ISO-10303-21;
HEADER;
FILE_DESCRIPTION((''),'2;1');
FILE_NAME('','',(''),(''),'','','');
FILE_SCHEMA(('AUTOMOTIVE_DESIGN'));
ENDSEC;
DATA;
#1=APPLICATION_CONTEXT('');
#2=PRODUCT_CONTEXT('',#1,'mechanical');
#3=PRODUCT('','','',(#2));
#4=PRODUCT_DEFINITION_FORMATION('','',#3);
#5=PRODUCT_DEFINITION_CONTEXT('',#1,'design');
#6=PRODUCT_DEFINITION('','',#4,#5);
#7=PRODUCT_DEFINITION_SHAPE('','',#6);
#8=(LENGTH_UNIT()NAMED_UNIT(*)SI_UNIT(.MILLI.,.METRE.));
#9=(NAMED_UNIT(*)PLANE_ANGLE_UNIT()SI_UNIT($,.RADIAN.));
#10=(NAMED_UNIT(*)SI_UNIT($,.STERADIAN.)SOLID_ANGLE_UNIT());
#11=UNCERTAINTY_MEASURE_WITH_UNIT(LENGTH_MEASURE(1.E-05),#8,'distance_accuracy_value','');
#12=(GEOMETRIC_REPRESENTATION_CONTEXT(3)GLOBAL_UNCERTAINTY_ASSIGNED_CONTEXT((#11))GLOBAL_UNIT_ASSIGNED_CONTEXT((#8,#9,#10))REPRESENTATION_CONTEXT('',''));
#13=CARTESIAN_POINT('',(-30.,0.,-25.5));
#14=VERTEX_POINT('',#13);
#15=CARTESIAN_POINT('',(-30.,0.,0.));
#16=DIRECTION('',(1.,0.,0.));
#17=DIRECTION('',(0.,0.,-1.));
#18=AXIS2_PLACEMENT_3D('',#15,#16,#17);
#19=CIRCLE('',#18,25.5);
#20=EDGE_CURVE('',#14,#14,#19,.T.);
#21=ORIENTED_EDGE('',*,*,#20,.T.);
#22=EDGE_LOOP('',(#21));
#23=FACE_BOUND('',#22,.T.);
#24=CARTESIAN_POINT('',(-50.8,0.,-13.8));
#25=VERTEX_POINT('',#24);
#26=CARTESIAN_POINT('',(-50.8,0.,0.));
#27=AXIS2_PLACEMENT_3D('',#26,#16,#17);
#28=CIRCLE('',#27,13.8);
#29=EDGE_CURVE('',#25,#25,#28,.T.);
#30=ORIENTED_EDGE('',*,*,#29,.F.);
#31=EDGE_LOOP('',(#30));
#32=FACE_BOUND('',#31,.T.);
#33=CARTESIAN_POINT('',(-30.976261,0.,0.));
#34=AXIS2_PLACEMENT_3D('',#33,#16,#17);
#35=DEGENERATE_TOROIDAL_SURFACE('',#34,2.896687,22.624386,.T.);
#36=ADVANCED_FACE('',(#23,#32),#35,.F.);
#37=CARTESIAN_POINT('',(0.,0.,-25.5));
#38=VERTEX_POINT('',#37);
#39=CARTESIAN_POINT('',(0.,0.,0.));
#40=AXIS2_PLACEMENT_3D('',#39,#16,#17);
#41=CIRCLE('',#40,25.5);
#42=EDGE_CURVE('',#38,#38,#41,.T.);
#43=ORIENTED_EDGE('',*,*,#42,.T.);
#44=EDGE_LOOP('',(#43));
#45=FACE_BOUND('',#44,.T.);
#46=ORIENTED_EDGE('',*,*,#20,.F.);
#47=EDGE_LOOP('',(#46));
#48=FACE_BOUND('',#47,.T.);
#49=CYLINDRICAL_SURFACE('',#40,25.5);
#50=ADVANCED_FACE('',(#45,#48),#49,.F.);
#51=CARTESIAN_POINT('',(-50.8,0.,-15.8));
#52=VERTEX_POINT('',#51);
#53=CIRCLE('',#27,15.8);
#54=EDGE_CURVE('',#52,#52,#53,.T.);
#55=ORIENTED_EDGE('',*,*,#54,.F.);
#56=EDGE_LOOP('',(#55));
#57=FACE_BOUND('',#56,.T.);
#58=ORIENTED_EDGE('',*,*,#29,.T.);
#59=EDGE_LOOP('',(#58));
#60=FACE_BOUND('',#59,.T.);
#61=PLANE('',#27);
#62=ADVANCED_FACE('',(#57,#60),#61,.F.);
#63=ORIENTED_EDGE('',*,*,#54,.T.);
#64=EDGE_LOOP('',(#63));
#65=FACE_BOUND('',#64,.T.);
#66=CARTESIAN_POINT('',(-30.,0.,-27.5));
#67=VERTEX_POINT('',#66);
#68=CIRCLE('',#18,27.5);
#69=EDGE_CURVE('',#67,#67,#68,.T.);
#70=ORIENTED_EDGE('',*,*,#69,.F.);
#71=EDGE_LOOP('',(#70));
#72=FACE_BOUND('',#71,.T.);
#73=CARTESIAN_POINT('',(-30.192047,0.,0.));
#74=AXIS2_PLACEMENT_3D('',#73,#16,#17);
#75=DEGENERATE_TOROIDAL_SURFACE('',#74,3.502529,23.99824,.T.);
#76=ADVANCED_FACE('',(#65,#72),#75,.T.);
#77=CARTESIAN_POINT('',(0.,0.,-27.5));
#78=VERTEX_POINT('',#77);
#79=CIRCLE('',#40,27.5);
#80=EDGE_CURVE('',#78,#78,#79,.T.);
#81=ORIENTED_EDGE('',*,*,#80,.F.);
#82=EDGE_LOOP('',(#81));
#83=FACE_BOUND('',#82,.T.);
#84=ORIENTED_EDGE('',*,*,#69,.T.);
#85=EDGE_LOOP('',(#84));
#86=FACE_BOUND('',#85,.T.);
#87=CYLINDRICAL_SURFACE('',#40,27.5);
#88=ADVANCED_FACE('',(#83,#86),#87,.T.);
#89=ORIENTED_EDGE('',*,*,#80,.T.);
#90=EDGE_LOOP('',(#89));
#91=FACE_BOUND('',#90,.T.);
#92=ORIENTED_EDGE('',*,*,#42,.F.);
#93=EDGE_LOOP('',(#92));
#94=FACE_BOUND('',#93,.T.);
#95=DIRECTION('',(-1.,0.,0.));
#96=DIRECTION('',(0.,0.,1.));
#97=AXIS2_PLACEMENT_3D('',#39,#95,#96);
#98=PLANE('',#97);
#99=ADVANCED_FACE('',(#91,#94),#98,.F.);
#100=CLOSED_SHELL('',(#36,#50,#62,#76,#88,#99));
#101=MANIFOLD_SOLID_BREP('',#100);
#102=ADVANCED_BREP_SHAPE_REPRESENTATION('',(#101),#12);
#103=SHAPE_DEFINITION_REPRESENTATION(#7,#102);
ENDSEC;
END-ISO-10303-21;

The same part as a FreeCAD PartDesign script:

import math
import FreeCAD as App
import Part
import Sketcher
from FreeCAD import Vector

doc = App.newDocument("Part")
body = doc.addObject("PartDesign::Body", "Body")

# Sketch on XY plane
sketch1 = body.newObject("Sketcher::SketchObject", "Sketch")
sketch1.AttachmentSupport = (doc.getObject("XY_Plane"), [""])
sketch1.MapMode = "FlatFace"
sketch1.addGeometry(Part.LineSegment(Vector(0, 27.5, 0), Vector(-30, 27.5, 0)), False)
sketch1.addGeometry(Part.ArcOfCircle(Part.Circle(Vector(-30.192047, 3.502529, 0), Vector(0, 0, 1), 23.99824), math.radians(89.541482), math.radians(149.174025)), False)
sketch1.addGeometry(Part.LineSegment(Vector(-50.8, 15.8, 0), Vector(-50.8, 13.8, 0)), False)
sketch1.addGeometry(Part.ArcOfCircle(Part.Circle(Vector(-30.976261, 2.896687, 0), Vector(0, 0, 1), 22.624386), math.radians(87.526871), math.radians(151.188636)), False)
sketch1.addGeometry(Part.LineSegment(Vector(-30, 25.5, 0), Vector(0, 25.5, 0)), False)
sketch1.addGeometry(Part.LineSegment(Vector(0, 25.5, 0), Vector(0, 27.5, 0)), False)
sketch1.addConstraint(Sketcher.Constraint("Coincident", 0, 2, 1, 1))
sketch1.addConstraint(Sketcher.Constraint("Coincident", 1, 2, 2, 1))
sketch1.addConstraint(Sketcher.Constraint("Coincident", 2, 2, 3, 2))
sketch1.addConstraint(Sketcher.Constraint("Coincident", 3, 1, 4, 1))
sketch1.addConstraint(Sketcher.Constraint("Coincident", 4, 2, 5, 1))
sketch1.addConstraint(Sketcher.Constraint("Coincident", 5, 2, 0, 1))
sketch1.addConstraint(Sketcher.Constraint("Horizontal", 0))
sketch1.addConstraint(Sketcher.Constraint("Vertical", 2))
sketch1.addConstraint(Sketcher.Constraint("Horizontal", 4))
sketch1.addConstraint(Sketcher.Constraint("Vertical", 5))
sketch1.addConstraint(Sketcher.Constraint("PointOnObject", 4, 2, -2))
sketch1.addConstraint(Sketcher.Constraint("Vertical", 0, 2, 3, 1))
sketch1.addConstraint(Sketcher.Constraint("Equal", 2, 5))
sketch1.addConstraint(Sketcher.Constraint("DistanceX", 0, 2, 0, 1, 30.0))
sketch1.addConstraint(Sketcher.Constraint("DistanceY", 2, 2, 2, 1, 2.0))
sketch1.addConstraint(Sketcher.Constraint("DistanceY", -1, 1, 0, 2, 27.5))
sketch1.addConstraint(Sketcher.Constraint("DistanceX", 1, 2, -1, 1, 50.8))
sketch1.addConstraint(Sketcher.Constraint("DistanceY", -1, 1, 1, 2, 15.8))
sketch1.addConstraint(Sketcher.Constraint("Radius", 1, 23.99824))
sketch1.addConstraint(Sketcher.Constraint("Radius", 3, 22.624386))
revolution = body.newObject("PartDesign::Revolution", "Revolution")
revolution.Profile = sketch1
revolution.ReferenceAxis = (sketch1, ["H_Axis"])
revolution.Angle = 360

doc.recompute()
